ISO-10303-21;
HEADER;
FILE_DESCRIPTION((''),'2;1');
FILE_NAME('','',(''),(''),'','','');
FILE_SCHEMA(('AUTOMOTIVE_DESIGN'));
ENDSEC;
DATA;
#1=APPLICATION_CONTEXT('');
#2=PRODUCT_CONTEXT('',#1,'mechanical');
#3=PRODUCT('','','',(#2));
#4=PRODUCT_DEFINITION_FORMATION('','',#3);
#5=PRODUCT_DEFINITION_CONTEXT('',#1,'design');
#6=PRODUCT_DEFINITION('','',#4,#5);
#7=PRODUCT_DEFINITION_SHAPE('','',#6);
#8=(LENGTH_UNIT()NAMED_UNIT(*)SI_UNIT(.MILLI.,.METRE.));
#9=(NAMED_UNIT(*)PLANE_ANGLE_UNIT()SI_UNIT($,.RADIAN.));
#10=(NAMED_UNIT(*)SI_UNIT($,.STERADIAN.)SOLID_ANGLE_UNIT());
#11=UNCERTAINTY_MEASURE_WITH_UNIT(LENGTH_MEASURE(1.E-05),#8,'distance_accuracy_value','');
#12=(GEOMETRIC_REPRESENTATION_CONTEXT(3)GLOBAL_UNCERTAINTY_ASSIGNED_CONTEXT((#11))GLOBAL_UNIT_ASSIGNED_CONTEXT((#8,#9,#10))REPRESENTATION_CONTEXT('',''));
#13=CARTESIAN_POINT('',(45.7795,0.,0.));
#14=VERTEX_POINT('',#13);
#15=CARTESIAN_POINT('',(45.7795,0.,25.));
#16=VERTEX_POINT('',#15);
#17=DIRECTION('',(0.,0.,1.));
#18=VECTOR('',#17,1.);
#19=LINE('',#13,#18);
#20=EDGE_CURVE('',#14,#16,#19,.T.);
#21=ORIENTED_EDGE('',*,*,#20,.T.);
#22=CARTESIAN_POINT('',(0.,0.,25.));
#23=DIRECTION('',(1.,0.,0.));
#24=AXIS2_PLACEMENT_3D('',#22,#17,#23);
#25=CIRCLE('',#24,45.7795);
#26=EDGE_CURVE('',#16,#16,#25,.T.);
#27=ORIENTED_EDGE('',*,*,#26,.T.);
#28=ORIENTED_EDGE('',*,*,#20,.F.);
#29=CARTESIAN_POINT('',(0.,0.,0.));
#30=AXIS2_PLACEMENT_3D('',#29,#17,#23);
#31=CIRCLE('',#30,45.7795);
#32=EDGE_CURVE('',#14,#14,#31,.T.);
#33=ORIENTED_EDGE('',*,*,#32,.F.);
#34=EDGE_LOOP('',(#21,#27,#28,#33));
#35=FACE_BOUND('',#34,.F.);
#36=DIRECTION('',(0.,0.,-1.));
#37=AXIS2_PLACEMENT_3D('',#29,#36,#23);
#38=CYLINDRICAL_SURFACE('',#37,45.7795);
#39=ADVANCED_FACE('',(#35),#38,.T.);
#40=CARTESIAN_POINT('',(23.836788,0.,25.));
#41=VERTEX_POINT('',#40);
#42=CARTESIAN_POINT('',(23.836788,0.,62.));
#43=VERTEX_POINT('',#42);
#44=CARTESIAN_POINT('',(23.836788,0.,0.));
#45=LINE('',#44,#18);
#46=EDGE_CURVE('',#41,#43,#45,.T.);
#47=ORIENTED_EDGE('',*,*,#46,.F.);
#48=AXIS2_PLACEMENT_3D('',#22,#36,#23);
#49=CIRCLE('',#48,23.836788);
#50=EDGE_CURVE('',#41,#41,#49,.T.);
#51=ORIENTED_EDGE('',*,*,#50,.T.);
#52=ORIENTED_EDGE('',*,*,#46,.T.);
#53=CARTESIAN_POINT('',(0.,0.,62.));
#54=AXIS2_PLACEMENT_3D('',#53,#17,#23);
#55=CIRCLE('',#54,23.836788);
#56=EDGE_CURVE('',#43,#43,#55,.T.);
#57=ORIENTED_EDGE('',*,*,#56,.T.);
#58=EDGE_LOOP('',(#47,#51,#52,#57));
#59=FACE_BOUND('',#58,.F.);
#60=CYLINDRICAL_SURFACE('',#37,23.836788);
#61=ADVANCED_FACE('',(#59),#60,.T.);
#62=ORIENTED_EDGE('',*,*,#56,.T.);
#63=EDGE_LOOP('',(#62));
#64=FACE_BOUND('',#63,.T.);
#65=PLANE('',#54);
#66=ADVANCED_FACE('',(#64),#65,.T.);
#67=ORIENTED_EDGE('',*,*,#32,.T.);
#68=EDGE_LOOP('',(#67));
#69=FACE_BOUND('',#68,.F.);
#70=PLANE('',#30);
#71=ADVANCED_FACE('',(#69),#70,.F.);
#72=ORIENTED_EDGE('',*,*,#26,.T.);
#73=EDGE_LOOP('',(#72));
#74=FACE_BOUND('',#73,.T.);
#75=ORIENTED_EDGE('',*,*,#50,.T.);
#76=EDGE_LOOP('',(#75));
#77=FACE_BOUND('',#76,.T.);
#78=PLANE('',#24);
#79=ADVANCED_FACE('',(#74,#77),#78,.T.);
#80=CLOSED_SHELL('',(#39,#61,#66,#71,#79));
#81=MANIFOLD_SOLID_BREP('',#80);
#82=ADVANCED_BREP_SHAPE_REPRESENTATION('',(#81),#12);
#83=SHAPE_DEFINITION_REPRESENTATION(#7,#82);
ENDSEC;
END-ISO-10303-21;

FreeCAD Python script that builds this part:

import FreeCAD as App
import Part
import Sketcher
Q = App.Units.Quantity

doc = App.newDocument("Part")
body = doc.addObject("PartDesign::Body", "Body")

# Sketch on XY plane
sketch1 = body.newObject("Sketcher::SketchObject", "Sketch")
sketch1.AttachmentSupport = (doc.getObject("XY_Plane"), [""])
sketch1.MapMode = "FlatFace"
sketch1.addGeometry(Part.Circle(App.Vector(0, 0, 0), App.Vector(0, 0, 1), 24), False)
sketch1.addConstraint([
    Sketcher.Constraint("Coincident", 0, 3, -1, 1),
    Sketcher.Constraint("Diameter", 0, Q("47.673576 mm")),
])
pad1 = body.newObject("PartDesign::Pad", "Pad")
pad1.Profile = sketch1
pad1.Length = 62

# Sketch on XY plane
sketch2 = body.newObject("Sketcher::SketchObject", "Sketch001")
sketch2.AttachmentSupport = (doc.getObject("XY_Plane"), [""])
sketch2.MapMode = "FlatFace"
sketch2.addGeometry([
    Part.Circle(App.Vector(0, 0, 0), App.Vector(0, 0, 1), 46),
    Part.Circle(App.Vector(0, 0, 0), App.Vector(0, 0, 1), 21),
], False)
sketch2.addConstraint([
    Sketcher.Constraint("Coincident", 0, 3, -1, 1),
    Sketcher.Constraint("Coincident", 1, 3, -1, 1),
    Sketcher.Constraint("Diameter", 0, Q("91.559 mm")),
    Sketcher.Constraint("Diameter", 1, Q("42.837016 mm")),
])
pad2 = body.newObject("PartDesign::Pad", "Pad001")
pad2.Profile = sketch2
pad2.Length = 25

doc.recompute()
